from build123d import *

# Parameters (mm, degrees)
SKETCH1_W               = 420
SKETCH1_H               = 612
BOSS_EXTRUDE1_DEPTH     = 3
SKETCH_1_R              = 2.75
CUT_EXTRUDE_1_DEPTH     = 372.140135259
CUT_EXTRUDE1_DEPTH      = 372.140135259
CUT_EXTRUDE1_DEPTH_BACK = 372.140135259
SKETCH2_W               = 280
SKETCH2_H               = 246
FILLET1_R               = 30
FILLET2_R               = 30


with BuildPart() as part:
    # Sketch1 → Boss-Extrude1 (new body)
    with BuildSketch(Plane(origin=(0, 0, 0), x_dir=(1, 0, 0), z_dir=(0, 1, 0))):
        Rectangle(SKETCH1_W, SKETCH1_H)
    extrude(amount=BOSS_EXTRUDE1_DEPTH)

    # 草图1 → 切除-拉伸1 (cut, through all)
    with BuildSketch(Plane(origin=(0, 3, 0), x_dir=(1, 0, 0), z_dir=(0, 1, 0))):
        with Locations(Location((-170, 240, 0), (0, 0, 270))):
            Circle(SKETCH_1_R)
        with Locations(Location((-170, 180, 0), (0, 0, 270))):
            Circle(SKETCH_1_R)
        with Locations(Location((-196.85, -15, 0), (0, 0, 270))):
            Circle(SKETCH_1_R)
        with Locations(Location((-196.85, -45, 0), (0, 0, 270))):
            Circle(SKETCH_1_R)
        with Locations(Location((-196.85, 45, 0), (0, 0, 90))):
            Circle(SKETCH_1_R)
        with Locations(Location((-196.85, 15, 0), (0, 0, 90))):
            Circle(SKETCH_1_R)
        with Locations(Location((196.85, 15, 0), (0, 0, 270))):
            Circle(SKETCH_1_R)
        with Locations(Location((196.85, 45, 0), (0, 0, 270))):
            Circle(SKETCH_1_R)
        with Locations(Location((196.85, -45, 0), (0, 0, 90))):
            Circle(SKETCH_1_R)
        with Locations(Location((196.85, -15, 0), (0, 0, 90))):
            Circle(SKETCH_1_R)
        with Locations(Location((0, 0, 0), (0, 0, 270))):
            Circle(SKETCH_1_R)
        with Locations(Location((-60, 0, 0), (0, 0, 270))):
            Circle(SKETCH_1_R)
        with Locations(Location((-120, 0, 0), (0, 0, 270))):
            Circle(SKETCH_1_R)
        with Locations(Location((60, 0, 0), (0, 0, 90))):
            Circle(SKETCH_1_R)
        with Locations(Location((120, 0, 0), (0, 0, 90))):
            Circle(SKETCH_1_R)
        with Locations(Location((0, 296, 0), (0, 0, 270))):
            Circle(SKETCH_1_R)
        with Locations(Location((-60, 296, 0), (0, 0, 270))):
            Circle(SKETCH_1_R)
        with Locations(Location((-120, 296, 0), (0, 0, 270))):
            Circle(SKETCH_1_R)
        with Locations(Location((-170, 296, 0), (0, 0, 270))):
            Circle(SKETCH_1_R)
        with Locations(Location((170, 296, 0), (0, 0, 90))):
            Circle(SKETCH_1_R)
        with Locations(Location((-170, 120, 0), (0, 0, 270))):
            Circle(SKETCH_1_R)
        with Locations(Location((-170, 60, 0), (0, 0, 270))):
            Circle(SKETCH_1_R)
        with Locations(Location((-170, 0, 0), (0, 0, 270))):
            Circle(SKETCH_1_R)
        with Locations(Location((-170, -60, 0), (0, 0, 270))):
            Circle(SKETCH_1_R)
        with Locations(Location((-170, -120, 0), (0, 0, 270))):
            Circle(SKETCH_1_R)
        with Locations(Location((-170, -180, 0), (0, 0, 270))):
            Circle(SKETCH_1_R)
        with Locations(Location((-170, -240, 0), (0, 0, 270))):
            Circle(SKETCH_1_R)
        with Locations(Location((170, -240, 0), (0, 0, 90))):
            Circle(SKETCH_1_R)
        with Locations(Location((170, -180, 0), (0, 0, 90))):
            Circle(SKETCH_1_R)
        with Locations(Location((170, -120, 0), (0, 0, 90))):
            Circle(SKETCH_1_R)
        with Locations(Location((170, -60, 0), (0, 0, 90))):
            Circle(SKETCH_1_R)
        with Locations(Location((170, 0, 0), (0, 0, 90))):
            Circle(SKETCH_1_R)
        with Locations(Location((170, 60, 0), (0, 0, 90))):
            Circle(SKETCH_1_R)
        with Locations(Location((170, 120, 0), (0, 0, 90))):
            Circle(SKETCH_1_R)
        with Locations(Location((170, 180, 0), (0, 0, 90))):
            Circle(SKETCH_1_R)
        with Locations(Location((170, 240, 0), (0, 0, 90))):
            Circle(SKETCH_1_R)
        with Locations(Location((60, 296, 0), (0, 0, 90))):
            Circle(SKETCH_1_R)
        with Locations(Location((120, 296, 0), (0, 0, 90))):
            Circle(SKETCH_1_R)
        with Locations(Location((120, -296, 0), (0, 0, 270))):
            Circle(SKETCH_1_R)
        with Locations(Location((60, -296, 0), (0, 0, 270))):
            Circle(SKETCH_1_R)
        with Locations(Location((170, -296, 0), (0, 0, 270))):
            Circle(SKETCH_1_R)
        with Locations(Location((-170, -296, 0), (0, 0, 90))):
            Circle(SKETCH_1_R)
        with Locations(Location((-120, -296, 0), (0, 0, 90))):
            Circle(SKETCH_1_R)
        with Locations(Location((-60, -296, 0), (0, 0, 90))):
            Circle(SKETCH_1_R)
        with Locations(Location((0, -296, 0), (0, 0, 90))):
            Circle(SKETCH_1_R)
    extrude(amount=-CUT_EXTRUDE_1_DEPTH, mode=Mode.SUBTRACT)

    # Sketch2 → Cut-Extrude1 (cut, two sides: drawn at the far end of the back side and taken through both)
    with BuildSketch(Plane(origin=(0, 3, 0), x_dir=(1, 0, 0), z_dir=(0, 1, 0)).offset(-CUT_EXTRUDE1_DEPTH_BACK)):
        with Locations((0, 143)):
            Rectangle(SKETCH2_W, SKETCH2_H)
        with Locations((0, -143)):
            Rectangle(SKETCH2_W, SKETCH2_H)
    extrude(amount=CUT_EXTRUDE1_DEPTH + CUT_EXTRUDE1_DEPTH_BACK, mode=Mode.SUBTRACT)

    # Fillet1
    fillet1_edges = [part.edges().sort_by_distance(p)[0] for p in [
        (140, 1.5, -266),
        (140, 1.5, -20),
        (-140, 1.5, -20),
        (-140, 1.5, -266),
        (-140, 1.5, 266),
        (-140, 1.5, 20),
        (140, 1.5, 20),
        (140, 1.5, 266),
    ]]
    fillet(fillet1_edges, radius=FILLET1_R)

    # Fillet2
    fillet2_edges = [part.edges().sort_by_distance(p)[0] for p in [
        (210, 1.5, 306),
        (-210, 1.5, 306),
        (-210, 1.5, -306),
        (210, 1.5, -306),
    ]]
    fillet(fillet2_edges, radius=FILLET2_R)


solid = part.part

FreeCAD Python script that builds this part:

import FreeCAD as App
import Part
import Sketcher

V = App.Vector
Q = App.Units.Quantity


def edges_at(feature, points):
    """Names of the edges that pass closest to the given points."""
    edges = feature.Shape.Edges
    near = lambda p: min(range(len(edges)), key=lambda i: edges[i].distToShape(Part.Vertex(*p))[0])
    return sorted({f"Edge{near(p) + 1}" for p in points})


def add_polygon(sketch, points):
    """Adds a closed chain of lines whose ends are joined by coincident constraints."""
    first, n = sketch.GeometryCount, len(points)
    for a, b in zip(points, points[1:] + points[:1]):
        sketch.addGeometry(Part.LineSegment(App.Vector(*a, 0), App.Vector(*b, 0)), False)
    for i in range(n):
        sketch.addConstraint(Sketcher.Constraint("Coincident", first + i, 2, first + (i + 1) % n, 1))

doc = App.newDocument("Part")
body = doc.addObject("PartDesign::Body", "Body")

# Sketch on XZ plane
sketch1 = body.newObject("Sketcher::SketchObject", "Sketch")
sketch1.AttachmentSupport = (doc.getObject("XZ_Plane"), [""])
sketch1.MapMode = "FlatFace"
add_polygon(sketch1, [(-210, -306), (-210, 306), (210, 306), (210, -306)])  # lines 0-3
sketch1.addConstraint(Sketcher.Constraint("Vertical", 0))
sketch1.addConstraint(Sketcher.Constraint("Horizontal", 1))
sketch1.addConstraint(Sketcher.Constraint("Vertical", 2))
sketch1.addConstraint(Sketcher.Constraint("Horizontal", 3))
sketch1.addConstraint(Sketcher.Constraint("Symmetric", 0, 2, 2, 2, -1, 1))
sketch1.addConstraint(Sketcher.Constraint("DistanceX", 1, 1, 1, 2, Q("420 mm")))
sketch1.addConstraint(Sketcher.Constraint("DistanceY", 0, 1, 0, 2, Q("612 mm")))
pad1 = body.newObject("PartDesign::Pad", "Pad")
pad1.Profile = sketch1
pad1.Length = 3
pad1.Reversed = True

# Sketch on XZ plane
sketch2 = body.newObject("Sketcher::SketchObject", "Sketch001")
sketch2.AttachmentSupport = (doc.getObject("XZ_Plane"), [""])
sketch2.MapMode = "FlatFace"
sketch2.AttachmentOffset = App.Placement(V(0, 0, -3), App.Rotation())
sketch2.addGeometry(Part.Circle(V(-170, -240, 0), V(0, 0, 1), 2.75), False)
sketch2.addGeometry(Part.Circle(V(-170, -180, 0), V(0, 0, 1), 2.75), False)
sketch2.addGeometry(Part.Circle(V(-196.85, 15, 0), V(0, 0, 1), 2.75), False)
sketch2.addGeometry(Part.Circle(V(-196.85, 45, 0), V(0, 0, 1), 2.75), False)
sketch2.addGeometry(Part.Circle(V(-196.85, -45, 0), V(0, 0, 1), 2.75), False)
sketch2.addGeometry(Part.Circle(V(-196.85, -15, 0), V(0, 0, 1), 2.75), False)
sketch2.addGeometry(Part.Circle(V(196.85, -15, 0), V(0, 0, 1), 2.75), False)
sketch2.addGeometry(Part.Circle(V(196.85, -45, 0), V(0, 0, 1), 2.75), False)
sketch2.addGeometry(Part.Circle(V(196.85, 45, 0), V(0, 0, 1), 2.75), False)
sketch2.addGeometry(Part.Circle(V(196.85, 15, 0), V(0, 0, 1), 2.75), False)
sketch2.addGeometry(Part.Circle(V(0, 0, 0), V(0, 0, 1), 2.75), False)
sketch2.addGeometry(Part.Circle(V(-60, 0, 0), V(0, 0, 1), 2.75), False)
sketch2.addGeometry(Part.Circle(V(-120, 0, 0), V(0, 0, 1), 2.75), False)
sketch2.addGeometry(Part.Circle(V(60, 0, 0), V(0, 0, 1), 2.75), False)
sketch2.addGeometry(Part.Circle(V(120, 0, 0), V(0, 0, 1), 2.75), False)
sketch2.addGeometry(Part.Circle(V(0, -296, 0), V(0, 0, 1), 2.75), False)
sketch2.addGeometry(Part.Circle(V(-60, -296, 0), V(0, 0, 1), 2.75), False)
sketch2.addGeometry(Part.Circle(V(-120, -296, 0), V(0, 0, 1), 2.75), False)
sketch2.addGeometry(Part.Circle(V(-170, -296, 0), V(0, 0, 1), 2.75), False)
sketch2.addGeometry(Part.Circle(V(170, -296, 0), V(0, 0, 1), 2.75), False)
sketch2.addGeometry(Part.Circle(V(-170, -120, 0), V(0, 0, 1), 2.75), False)
sketch2.addGeometry(Part.Circle(V(-170, -60, 0), V(0, 0, 1), 2.75), False)
sketch2.addGeometry(Part.Circle(V(-170, 0, 0), V(0, 0, 1), 2.75), False)
sketch2.addGeometry(Part.Circle(V(-170, 60, 0), V(0, 0, 1), 2.75), False)
sketch2.addGeometry(Part.Circle(V(-170, 120, 0), V(0, 0, 1), 2.75), False)
sketch2.addGeometry(Part.Circle(V(-170, 180, 0), V(0, 0, 1), 2.75), False)
sketch2.addGeometry(Part.Circle(V(-170, 240, 0), V(0, 0, 1), 2.75), False)
sketch2.addGeometry(Part.Circle(V(170, 240, 0), V(0, 0, 1), 2.75), False)
sketch2.addGeometry(Part.Circle(V(170, 180, 0), V(0, 0, 1), 2.75), False)
sketch2.addGeometry(Part.Circle(V(170, 120, 0), V(0, 0, 1), 2.75), False)
sketch2.addGeometry(Part.Circle(V(170, 60, 0), V(0, 0, 1), 2.75), False)
sketch2.addGeometry(Part.Circle(V(170, 0, 0), V(0, 0, 1), 2.75), False)
sketch2.addGeometry(Part.Circle(V(170, -60, 0), V(0, 0, 1), 2.75), False)
sketch2.addGeometry(Part.Circle(V(170, -120, 0), V(0, 0, 1), 2.75), False)
sketch2.addGeometry(Part.Circle(V(170, -180, 0), V(0, 0, 1), 2.75), False)
sketch2.addGeometry(Part.Circle(V(170, -240, 0), V(0, 0, 1), 2.75), False)
sketch2.addGeometry(Part.Circle(V(60, -296, 0), V(0, 0, 1), 2.75), False)
sketch2.addGeometry(Part.Circle(V(120, -296, 0), V(0, 0, 1), 2.75), False)
sketch2.addGeometry(Part.Circle(V(120, 296, 0), V(0, 0, 1), 2.75), False)
sketch2.addGeometry(Part.Circle(V(60, 296, 0), V(0, 0, 1), 2.75), False)
sketch2.addGeometry(Part.Circle(V(170, 296, 0), V(0, 0, 1), 2.75), False)
sketch2.addGeometry(Part.Circle(V(-170, 296, 0), V(0, 0, 1), 2.75), False)
sketch2.addGeometry(Part.Circle(V(-120, 296, 0), V(0, 0, 1), 2.75), False)
sketch2.addGeometry(Part.Circle(V(-60, 296, 0), V(0, 0, 1), 2.75), False)
sketch2.addGeometry(Part.Circle(V(0, 296, 0), V(0, 0, 1), 2.75), False)
sketch2.addConstraint(Sketcher.Constraint("Coincident", 10, 3, -1, 1))
sketch2.addConstraint(Sketcher.Constraint("Equal", 0, 1))
sketch2.addConstraint(Sketcher.Constraint("Equal", 1, 2))
sketch2.addConstraint(Sketcher.Constraint("Equal", 2, 3))
sketch2.addConstraint(Sketcher.Constraint("Equal", 3, 4))
sketch2.addConstraint(Sketcher.Constraint("Equal", 4, 5))
sketch2.addConstraint(Sketcher.Constraint("Equal", 5, 6))
sketch2.addConstraint(Sketcher.Constraint("Equal", 6, 7))
sketch2.addConstraint(Sketcher.Constraint("Equal", 7, 8))
sketch2.addConstraint(Sketcher.Constraint("Equal", 8, 9))
sketch2.addConstraint(Sketcher.Constraint("Equal", 9, 10))
sketch2.addConstraint(Sketcher.Constraint("Equal", 10, 11))
sketch2.addConstraint(Sketcher.Constraint("Equal", 11, 12))
sketch2.addConstraint(Sketcher.Constraint("Equal", 12, 13))
sketch2.addConstraint(Sketcher.Constraint("Equal", 13, 14))
sketch2.addConstraint(Sketcher.Constraint("Equal", 14, 15))
sketch2.addConstraint(Sketcher.Constraint("Equal", 15, 16))
sketch2.addConstraint(Sketcher.Constraint("Equal", 16, 17))
sketch2.addConstraint(Sketcher.Constraint("Equal", 17, 18))
sketch2.addConstraint(Sketcher.Constraint("Equal", 18, 19))
sketch2.addConstraint(Sketcher.Constraint("Equal", 19, 20))
sketch2.addConstraint(Sketcher.Constraint("Equal", 20, 21))
sketch2.addConstraint(Sketcher.Constraint("Equal", 21, 22))
sketch2.addConstraint(Sketcher.Constraint("Equal", 22, 23))
sketch2.addConstraint(Sketcher.Constraint("Equal", 23, 24))
sketch2.addConstraint(Sketcher.Constraint("Equal", 24, 25))
sketch2.addConstraint(Sketcher.Constraint("Equal", 25, 26))
sketch2.addConstraint(Sketcher.Constraint("Equal", 26, 27))
sketch2.addConstraint(Sketcher.Constraint("Equal", 27, 28))
sketch2.addConstraint(Sketcher.Constraint("Equal", 28, 29))
sketch2.addConstraint(Sketcher.Constraint("Equal", 29, 30))
sketch2.addConstraint(Sketcher.Constraint("Equal", 30, 31))
sketch2.addConstraint(Sketcher.Constraint("Equal", 31, 32))
sketch2.addConstraint(Sketcher.Constraint("Equal", 32, 33))
sketch2.addConstraint(Sketcher.Constraint("Equal", 33, 34))
sketch2.addConstraint(Sketcher.Constraint("Equal", 34, 35))
sketch2.addConstraint(Sketcher.Constraint("Equal", 35, 36))
sketch2.addConstraint(Sketcher.Constraint("Equal", 36, 37))
sketch2.addConstraint(Sketcher.Constraint("Equal", 37, 38))
sketch2.addConstraint(Sketcher.Constraint("Equal", 38, 39))
sketch2.addConstraint(Sketcher.Constraint("Equal", 39, 40))
sketch2.addConstraint(Sketcher.Constraint("Equal", 40, 41))
sketch2.addConstraint(Sketcher.Constraint("Equal", 41, 42))
sketch2.addConstraint(Sketcher.Constraint("Equal", 42, 43))
sketch2.addConstraint(Sketcher.Constraint("Equal", 43, 44))
sketch2.addConstraint(Sketcher.Constraint("Symmetric", 2, 3, 6, 3, -1, 1))
sketch2.addConstraint(Sketcher.Constraint("Symmetric", 3, 3, 7, 3, -1, 1))
sketch2.addConstraint(Sketcher.Constraint("Symmetric", 4, 3, 8, 3, -1, 1))
sketch2.addConstraint(Sketcher.Constraint("Symmetric", 5, 3, 9, 3, -1, 1))
sketch2.addConstraint(Sketcher.Constraint("Symmetric", 11, 3, 13, 3, -1, 1))
sketch2.addConstraint(Sketcher.Constraint("Symmetric", 12, 3, 14, 3, -1, 1))
sketch2.addConstraint(Sketcher.Constraint("Symmetric", 0, 3, 27, 3, -1, 1))
sketch2.addConstraint(Sketcher.Constraint("Symmetric", 1, 3, 28, 3, -1, 1))
sketch2.addConstraint(Sketcher.Constraint("Symmetric", 20, 3, 29, 3, -1, 1))
sketch2.addConstraint(Sketcher.Constraint("Symmetric", 21, 3, 30, 3, -1, 1))
sketch2.addConstraint(Sketcher.Constraint("Symmetric", 22, 3, 31, 3, -1, 1))
sketch2.addConstraint(Sketcher.Constraint("Symmetric", 23, 3, 32, 3, -1, 1))
sketch2.addConstraint(Sketcher.Constraint("Symmetric", 24, 3, 33, 3, -1, 1))
sketch2.addConstraint(Sketcher.Constraint("Symmetric", 25, 3, 34, 3, -1, 1))
sketch2.addConstraint(Sketcher.Constraint("Symmetric", 26, 3, 35, 3, -1, 1))
sketch2.addConstraint(Sketcher.Constraint("Symmetric", 17, 3, 38, 3, -1, 1))
sketch2.addConstraint(Sketcher.Constraint("Symmetric", 16, 3, 39, 3, -1, 1))
sketch2.addConstraint(Sketcher.Constraint("Symmetric", 18, 3, 40, 3, -1, 1))
sketch2.addConstraint(Sketcher.Constraint("Symmetric", 19, 3, 41, 3, -1, 1))
sketch2.addConstraint(Sketcher.Constraint("Symmetric", 37, 3, 42, 3, -1, 1))
sketch2.addConstraint(Sketcher.Constraint("Symmetric", 36, 3, 43, 3, -1, 1))
sketch2.addConstraint(Sketcher.Constraint("Symmetric", 15, 3, 44, 3, -1, 1))
sketch2.addConstraint(Sketcher.Constraint("Symmetric", 5, 3, 6, 3, -2))
sketch2.addConstraint(Sketcher.Constraint("Symmetric", 4, 3, 7, 3, -2))
sketch2.addConstraint(Sketcher.Constraint("Symmetric", 18, 3, 19, 3, -2))
sketch2.addConstraint(Sketcher.Constraint("Symmetric", 26, 3, 27, 3, -2))
sketch2.addConstraint(Sketcher.Constraint("Symmetric", 25, 3, 28, 3, -2))
sketch2.addConstraint(Sketcher.Constraint("Symmetric", 24, 3, 29, 3, -2))
sketch2.addConstraint(Sketcher.Constraint("Symmetric", 23, 3, 30, 3, -2))
sketch2.addConstraint(Sketcher.Constraint("Symmetric", 16, 3, 36, 3, -2))
sketch2.addConstraint(Sketcher.Constraint("Symmetric", 17, 3, 37, 3, -2))
sketch2.addConstraint(Sketcher.Constraint("PointOnObject", 11, 3, -1))
sketch2.addConstraint(Sketcher.Constraint("PointOnObject", 12, 3, -1))
sketch2.addConstraint(Sketcher.Constraint("PointOnObject", 15, 3, -2))
sketch2.addConstraint(Sketcher.Constraint("PointOnObject", 22, 3, -1))
sketch2.addConstraint(Sketcher.Constraint("Horizontal", 15, 3, 16, 3))
sketch2.addConstraint(Sketcher.Constraint("Horizontal", 16, 3, 17, 3))
sketch2.addConstraint(Sketcher.Constraint("Horizontal", 17, 3, 18, 3))
sketch2.addConstraint(Sketcher.Constraint("Vertical", 0, 3, 1, 3))
sketch2.addConstraint(Sketcher.Constraint("Vertical", 2, 3, 3, 3))
sketch2.addConstraint(Sketcher.Constraint("Vertical", 11, 3, 16, 3))
sketch2.addConstraint(Sketcher.Constraint("Vertical", 12, 3, 17, 3))
sketch2.addConstraint(Sketcher.Constraint("Vertical", 1, 3, 18, 3))
sketch2.addConstraint(Sketcher.Constraint("Vertical", 18, 3, 20, 3))
sketch2.addConstraint(Sketcher.Constraint("Vertical", 20, 3, 21, 3))
sketch2.addConstraint(Sketcher.Constraint("Vertical", 21, 3, 22, 3))
sketch2.addConstraint(Sketcher.Constraint("Diameter", 0, Q("5.5 mm")))
sketch2.addConstraint(Sketcher.Constraint("DistanceX", 0, 3, -1, 1, Q("170 mm")))
sketch2.addConstraint(Sketcher.Constraint("DistanceY", 0, 3, -1, 1, Q("240 mm")))
sketch2.addConstraint(Sketcher.Constraint("DistanceY", 1, 3, -1, 1, Q("180 mm")))
sketch2.addConstraint(Sketcher.Constraint("DistanceY", -1, 1, 2, 3, Q("15 mm")))
sketch2.addConstraint(Sketcher.Constraint("DistanceY", -1, 1, 3, 3, Q("45 mm")))
sketch2.addConstraint(Sketcher.Constraint("DistanceX", 11, 3, -1, 1, Q("60 mm")))
sketch2.addConstraint(Sketcher.Constraint("DistanceX", 12, 3, -1, 1, Q("120 mm")))
sketch2.addConstraint(Sketcher.Constraint("DistanceY", 15, 3, -1, 1, Q("296 mm")))
sketch2.addConstraint(Sketcher.Constraint("DistanceY", 20, 3, -1, 1, Q("120 mm")))
sketch2.addConstraint(Sketcher.Constraint("DistanceY", 21, 3, -1, 1, Q("60 mm")))
sketch2.addConstraint(Sketcher.Constraint("DistanceX", 5, 3, 6, 3, Q("393.7 mm")))
pocket1 = body.newObject("PartDesign::Pocket", "Pocket")
pocket1.Profile = sketch2
pocket1.Type = "ThroughAll"
pocket1.Reversed = True

# Sketch on XZ plane
sketch3 = body.newObject("Sketcher::SketchObject", "Sketch002")
sketch3.AttachmentSupport = (doc.getObject("XZ_Plane"), [""])
sketch3.MapMode = "FlatFace"
sketch3.AttachmentOffset = App.Placement(V(0, 0, -3), App.Rotation())
add_polygon(sketch3, [(-140, -266), (-140, -20), (140, -20), (140, -266)])  # lines 0-3
add_polygon(sketch3, [(-140, 20), (-140, 266), (140, 266), (140, 20)])  # lines 4-7
sketch3.addConstraint(Sketcher.Constraint("Vertical", 0))
sketch3.addConstraint(Sketcher.Constraint("Horizontal", 1))
sketch3.addConstraint(Sketcher.Constraint("Vertical", 2))
sketch3.addConstraint(Sketcher.Constraint("Horizontal", 3))
sketch3.addConstraint(Sketcher.Constraint("Vertical", 4))
sketch3.addConstraint(Sketcher.Constraint("Horizontal", 5))
sketch3.addConstraint(Sketcher.Constraint("Vertical", 6))
sketch3.addConstraint(Sketcher.Constraint("Horizontal", 7))
sketch3.addConstraint(Sketcher.Constraint("Symmetric", 2, 2, 4, 2, -1, 1))
sketch3.addConstraint(Sketcher.Constraint("Symmetric", 0, 2, 6, 2, -1, 1))
sketch3.addConstraint(Sketcher.Constraint("Vertical", 3, 2, 4, 2))
sketch3.addConstraint(Sketcher.Constraint("DistanceX", 1, 1, 1, 2, Q("280 mm")))
sketch3.addConstraint(Sketcher.Constraint("DistanceY", 0, 1, 0, 2, Q("246 mm")))
sketch3.addConstraint(Sketcher.Constraint("DistanceY", 0, 2, -1, 1, Q("20 mm")))
pocket2 = body.newObject("PartDesign::Pocket", "Pocket001")
pocket2.Profile = sketch3
pocket2.Type = "ThroughAll"
pocket2.Midplane = True
doc.recompute()

fillet = body.newObject("PartDesign::Fillet", "Fillet")
fillet.Base = (pocket2, edges_at(pocket2, [
    (140, 1.5, -266),
    (140, 1.5, -20),
    (-140, 1.5, -20),
    (-140, 1.5, -266),
    (-140, 1.5, 266),
    (-140, 1.5, 20),
    (140, 1.5, 20),
    (140, 1.5, 266),
]))
fillet.Radius = 30
doc.recompute()

fillet2 = body.newObject("PartDesign::Fillet", "Fillet001")
fillet2.Base = (fillet, edges_at(fillet, [
    (210, 1.5, 306),
    (-210, 1.5, 306),
    (-210, 1.5, -306),
    (210, 1.5, -306),
]))
fillet2.Radius = 30

doc.recompute()
